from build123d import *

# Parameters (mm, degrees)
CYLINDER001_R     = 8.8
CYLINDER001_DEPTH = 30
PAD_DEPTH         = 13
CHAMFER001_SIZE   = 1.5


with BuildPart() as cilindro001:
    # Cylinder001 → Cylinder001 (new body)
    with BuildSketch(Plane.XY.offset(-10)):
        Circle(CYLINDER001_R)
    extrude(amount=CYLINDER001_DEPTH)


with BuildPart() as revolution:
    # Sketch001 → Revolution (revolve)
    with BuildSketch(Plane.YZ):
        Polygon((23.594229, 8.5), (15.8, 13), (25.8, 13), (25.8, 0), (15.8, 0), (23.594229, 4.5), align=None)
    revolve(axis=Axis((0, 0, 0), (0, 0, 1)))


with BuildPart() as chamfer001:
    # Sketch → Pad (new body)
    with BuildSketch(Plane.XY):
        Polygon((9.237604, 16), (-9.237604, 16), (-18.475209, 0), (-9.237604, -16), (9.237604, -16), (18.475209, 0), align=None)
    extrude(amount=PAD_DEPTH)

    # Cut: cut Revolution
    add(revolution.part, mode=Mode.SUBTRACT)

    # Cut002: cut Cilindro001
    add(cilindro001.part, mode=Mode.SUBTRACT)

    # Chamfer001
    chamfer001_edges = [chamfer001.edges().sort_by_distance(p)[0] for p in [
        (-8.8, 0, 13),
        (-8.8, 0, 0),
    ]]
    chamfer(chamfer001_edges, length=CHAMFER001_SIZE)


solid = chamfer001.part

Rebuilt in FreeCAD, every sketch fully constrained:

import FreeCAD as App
import Part
import Sketcher
Q = App.Units.Quantity


def edges_at(feature, points):
    """Names of the edges that pass closest to the given points."""
    edges = feature.Shape.Edges
    near = lambda p: min(range(len(edges)), key=lambda i: edges[i].distToShape(Part.Vertex(*p))[0])
    return sorted({f"Edge{near(p) + 1}" for p in points})


def add_polygon(sketch, points):
    """Adds a closed chain of lines whose ends are joined by coincident constraints."""
    first, n = sketch.GeometryCount, len(points)
    for a, b in zip(points, points[1:] + points[:1]):
        sketch.addGeometry(Part.LineSegment(App.Vector(*a, 0), App.Vector(*b, 0)), False)
    for i in range(n):
        sketch.addConstraint(Sketcher.Constraint("Coincident", first + i, 2, first + (i + 1) % n, 1))

doc = App.newDocument("Part")
body = doc.addObject("PartDesign::Body", "Body")

# Sketch on XY plane
sketch1 = doc.addObject("Sketcher::SketchObject", "Sketch")
body.addObject(sketch1)
sketch1.AttachmentSupport = (doc.XY_Plane, [""])
sketch1.MapMode = "FlatFace"
sketch1.AttachmentOffset = App.Placement(App.Vector(0, 0, -10), App.Rotation())
sketch1.addGeometry(Part.Circle(App.Vector(0, 0, 0), App.Vector(0, 0, 1), 8.8), False)
sketch1.addConstraint(Sketcher.Constraint("Coincident", 0, 3, -1, 1))
sketch1.addConstraint(Sketcher.Constraint("Diameter", 0, Q("17.6 mm")))
pad1 = doc.addObject("PartDesign::Pad", "Pad")
body.addObject(pad1)
pad1.Profile = sketch1
pad1.Length = 30
body2 = doc.addObject("PartDesign::Body", "Body001")

# Sketch on YZ plane
sketch2 = doc.addObject("Sketcher::SketchObject", "Sketch001")
body2.addObject(sketch2)
sketch2.AttachmentSupport = (doc.getObject("YZ_Plane001"), [""])
sketch2.MapMode = "FlatFace"
add_polygon(sketch2, [(15.8, 13), (23.594229, 8.5), (23.594229, 4.5), (15.8, 0), (25.8, 0), (25.8, 13)])  # lines 0-5
sketch2.addConstraint(Sketcher.Constraint("Vertical", 1))
sketch2.addConstraint(Sketcher.Constraint("Horizontal", 3))
sketch2.addConstraint(Sketcher.Constraint("Vertical", 4))
sketch2.addConstraint(Sketcher.Constraint("Horizontal", 5))
sketch2.addConstraint(Sketcher.Constraint("PointOnObject", 2, 2, -1))
sketch2.addConstraint(Sketcher.Constraint("Vertical", 2, 2, 5, 2))
sketch2.addConstraint(Sketcher.Constraint("Equal", 0, 2))
sketch2.addConstraint(Sketcher.Constraint("DistanceX", 3, 1, 3, 2, Q("10 mm")))
sketch2.addConstraint(Sketcher.Constraint("DistanceY", 1, 2, 1, 1, Q("4 mm")))
sketch2.addConstraint(Sketcher.Constraint("DistanceY", 4, 1, 4, 2, Q("13 mm")))
sketch2.addConstraint(Sketcher.Constraint("Angle", 0, Q("-29.999999 deg")))
sketch2.addConstraint(Sketcher.Constraint("DistanceX", -1, 1, 2, 2, Q("15.8 mm")))
revolution = doc.addObject("PartDesign::Revolution", "Revolution")
body2.addObject(revolution)
revolution.Profile = sketch2
revolution.ReferenceAxis = (sketch2, ["V_Axis"])
revolution.Angle = 360
body3 = doc.addObject("PartDesign::Body", "Body002")

# Sketch on XY plane
sketch3 = doc.addObject("Sketcher::SketchObject", "Sketch002")
body3.addObject(sketch3)
sketch3.AttachmentSupport = (doc.getObject("XY_Plane002"), [""])
sketch3.MapMode = "FlatFace"
add_polygon(sketch3, [(9.237604, 16), (-9.237604, 16), (-18.475209, 0), (-9.237604, -16), (9.237604, -16), (18.475209, 0)])  # lines 0-5
sketch3.addConstraint(Sketcher.Constraint("Horizontal", 0))
sketch3.addConstraint(Sketcher.Constraint("Horizontal", 3))
sketch3.addConstraint(Sketcher.Constraint("Symmetric", 0, 2, 3, 2, -1, 1))
sketch3.addConstraint(Sketcher.Constraint("Symmetric", 1, 2, 4, 2, -1, 1))
sketch3.addConstraint(Sketcher.Constraint("PointOnObject", 1, 2, -1))
sketch3.addConstraint(Sketcher.Constraint("Parallel", 2, 5))
sketch3.addConstraint(Sketcher.Constraint("Vertical", 0, 2, 2, 2))
sketch3.addConstraint(Sketcher.Constraint("Angle", 1, Q("-120.000002 deg")))
sketch3.addConstraint(Sketcher.Constraint("DistanceY", -1, 1, 0, 2, Q("16 mm")))
sketch3.addConstraint(Sketcher.Constraint("DistanceX", 0, 2, 0, 1, Q("18.475208 mm")))
pad2 = doc.addObject("PartDesign::Pad", "Pad001")
body3.addObject(pad2)
pad2.Profile = sketch3
pad2.Length = 13
doc.recompute()

boolean = doc.addObject("PartDesign::Boolean", "Boolean")
body3.addObject(boolean)
boolean.Type = "Cut"
boolean.addObjects([body2])
doc.recompute()

boolean2 = doc.addObject("PartDesign::Boolean", "Boolean001")
body3.addObject(boolean2)
boolean2.Type = "Cut"
boolean2.addObjects([body])
doc.recompute()

chamfer = doc.addObject("PartDesign::Chamfer", "Chamfer")
body3.addObject(chamfer)
chamfer.Base = (boolean2, edges_at(boolean2, [(-8.8, 0, 13), (-8.8, 0, 0)]))
chamfer.Size = 1.5

doc.recompute()
